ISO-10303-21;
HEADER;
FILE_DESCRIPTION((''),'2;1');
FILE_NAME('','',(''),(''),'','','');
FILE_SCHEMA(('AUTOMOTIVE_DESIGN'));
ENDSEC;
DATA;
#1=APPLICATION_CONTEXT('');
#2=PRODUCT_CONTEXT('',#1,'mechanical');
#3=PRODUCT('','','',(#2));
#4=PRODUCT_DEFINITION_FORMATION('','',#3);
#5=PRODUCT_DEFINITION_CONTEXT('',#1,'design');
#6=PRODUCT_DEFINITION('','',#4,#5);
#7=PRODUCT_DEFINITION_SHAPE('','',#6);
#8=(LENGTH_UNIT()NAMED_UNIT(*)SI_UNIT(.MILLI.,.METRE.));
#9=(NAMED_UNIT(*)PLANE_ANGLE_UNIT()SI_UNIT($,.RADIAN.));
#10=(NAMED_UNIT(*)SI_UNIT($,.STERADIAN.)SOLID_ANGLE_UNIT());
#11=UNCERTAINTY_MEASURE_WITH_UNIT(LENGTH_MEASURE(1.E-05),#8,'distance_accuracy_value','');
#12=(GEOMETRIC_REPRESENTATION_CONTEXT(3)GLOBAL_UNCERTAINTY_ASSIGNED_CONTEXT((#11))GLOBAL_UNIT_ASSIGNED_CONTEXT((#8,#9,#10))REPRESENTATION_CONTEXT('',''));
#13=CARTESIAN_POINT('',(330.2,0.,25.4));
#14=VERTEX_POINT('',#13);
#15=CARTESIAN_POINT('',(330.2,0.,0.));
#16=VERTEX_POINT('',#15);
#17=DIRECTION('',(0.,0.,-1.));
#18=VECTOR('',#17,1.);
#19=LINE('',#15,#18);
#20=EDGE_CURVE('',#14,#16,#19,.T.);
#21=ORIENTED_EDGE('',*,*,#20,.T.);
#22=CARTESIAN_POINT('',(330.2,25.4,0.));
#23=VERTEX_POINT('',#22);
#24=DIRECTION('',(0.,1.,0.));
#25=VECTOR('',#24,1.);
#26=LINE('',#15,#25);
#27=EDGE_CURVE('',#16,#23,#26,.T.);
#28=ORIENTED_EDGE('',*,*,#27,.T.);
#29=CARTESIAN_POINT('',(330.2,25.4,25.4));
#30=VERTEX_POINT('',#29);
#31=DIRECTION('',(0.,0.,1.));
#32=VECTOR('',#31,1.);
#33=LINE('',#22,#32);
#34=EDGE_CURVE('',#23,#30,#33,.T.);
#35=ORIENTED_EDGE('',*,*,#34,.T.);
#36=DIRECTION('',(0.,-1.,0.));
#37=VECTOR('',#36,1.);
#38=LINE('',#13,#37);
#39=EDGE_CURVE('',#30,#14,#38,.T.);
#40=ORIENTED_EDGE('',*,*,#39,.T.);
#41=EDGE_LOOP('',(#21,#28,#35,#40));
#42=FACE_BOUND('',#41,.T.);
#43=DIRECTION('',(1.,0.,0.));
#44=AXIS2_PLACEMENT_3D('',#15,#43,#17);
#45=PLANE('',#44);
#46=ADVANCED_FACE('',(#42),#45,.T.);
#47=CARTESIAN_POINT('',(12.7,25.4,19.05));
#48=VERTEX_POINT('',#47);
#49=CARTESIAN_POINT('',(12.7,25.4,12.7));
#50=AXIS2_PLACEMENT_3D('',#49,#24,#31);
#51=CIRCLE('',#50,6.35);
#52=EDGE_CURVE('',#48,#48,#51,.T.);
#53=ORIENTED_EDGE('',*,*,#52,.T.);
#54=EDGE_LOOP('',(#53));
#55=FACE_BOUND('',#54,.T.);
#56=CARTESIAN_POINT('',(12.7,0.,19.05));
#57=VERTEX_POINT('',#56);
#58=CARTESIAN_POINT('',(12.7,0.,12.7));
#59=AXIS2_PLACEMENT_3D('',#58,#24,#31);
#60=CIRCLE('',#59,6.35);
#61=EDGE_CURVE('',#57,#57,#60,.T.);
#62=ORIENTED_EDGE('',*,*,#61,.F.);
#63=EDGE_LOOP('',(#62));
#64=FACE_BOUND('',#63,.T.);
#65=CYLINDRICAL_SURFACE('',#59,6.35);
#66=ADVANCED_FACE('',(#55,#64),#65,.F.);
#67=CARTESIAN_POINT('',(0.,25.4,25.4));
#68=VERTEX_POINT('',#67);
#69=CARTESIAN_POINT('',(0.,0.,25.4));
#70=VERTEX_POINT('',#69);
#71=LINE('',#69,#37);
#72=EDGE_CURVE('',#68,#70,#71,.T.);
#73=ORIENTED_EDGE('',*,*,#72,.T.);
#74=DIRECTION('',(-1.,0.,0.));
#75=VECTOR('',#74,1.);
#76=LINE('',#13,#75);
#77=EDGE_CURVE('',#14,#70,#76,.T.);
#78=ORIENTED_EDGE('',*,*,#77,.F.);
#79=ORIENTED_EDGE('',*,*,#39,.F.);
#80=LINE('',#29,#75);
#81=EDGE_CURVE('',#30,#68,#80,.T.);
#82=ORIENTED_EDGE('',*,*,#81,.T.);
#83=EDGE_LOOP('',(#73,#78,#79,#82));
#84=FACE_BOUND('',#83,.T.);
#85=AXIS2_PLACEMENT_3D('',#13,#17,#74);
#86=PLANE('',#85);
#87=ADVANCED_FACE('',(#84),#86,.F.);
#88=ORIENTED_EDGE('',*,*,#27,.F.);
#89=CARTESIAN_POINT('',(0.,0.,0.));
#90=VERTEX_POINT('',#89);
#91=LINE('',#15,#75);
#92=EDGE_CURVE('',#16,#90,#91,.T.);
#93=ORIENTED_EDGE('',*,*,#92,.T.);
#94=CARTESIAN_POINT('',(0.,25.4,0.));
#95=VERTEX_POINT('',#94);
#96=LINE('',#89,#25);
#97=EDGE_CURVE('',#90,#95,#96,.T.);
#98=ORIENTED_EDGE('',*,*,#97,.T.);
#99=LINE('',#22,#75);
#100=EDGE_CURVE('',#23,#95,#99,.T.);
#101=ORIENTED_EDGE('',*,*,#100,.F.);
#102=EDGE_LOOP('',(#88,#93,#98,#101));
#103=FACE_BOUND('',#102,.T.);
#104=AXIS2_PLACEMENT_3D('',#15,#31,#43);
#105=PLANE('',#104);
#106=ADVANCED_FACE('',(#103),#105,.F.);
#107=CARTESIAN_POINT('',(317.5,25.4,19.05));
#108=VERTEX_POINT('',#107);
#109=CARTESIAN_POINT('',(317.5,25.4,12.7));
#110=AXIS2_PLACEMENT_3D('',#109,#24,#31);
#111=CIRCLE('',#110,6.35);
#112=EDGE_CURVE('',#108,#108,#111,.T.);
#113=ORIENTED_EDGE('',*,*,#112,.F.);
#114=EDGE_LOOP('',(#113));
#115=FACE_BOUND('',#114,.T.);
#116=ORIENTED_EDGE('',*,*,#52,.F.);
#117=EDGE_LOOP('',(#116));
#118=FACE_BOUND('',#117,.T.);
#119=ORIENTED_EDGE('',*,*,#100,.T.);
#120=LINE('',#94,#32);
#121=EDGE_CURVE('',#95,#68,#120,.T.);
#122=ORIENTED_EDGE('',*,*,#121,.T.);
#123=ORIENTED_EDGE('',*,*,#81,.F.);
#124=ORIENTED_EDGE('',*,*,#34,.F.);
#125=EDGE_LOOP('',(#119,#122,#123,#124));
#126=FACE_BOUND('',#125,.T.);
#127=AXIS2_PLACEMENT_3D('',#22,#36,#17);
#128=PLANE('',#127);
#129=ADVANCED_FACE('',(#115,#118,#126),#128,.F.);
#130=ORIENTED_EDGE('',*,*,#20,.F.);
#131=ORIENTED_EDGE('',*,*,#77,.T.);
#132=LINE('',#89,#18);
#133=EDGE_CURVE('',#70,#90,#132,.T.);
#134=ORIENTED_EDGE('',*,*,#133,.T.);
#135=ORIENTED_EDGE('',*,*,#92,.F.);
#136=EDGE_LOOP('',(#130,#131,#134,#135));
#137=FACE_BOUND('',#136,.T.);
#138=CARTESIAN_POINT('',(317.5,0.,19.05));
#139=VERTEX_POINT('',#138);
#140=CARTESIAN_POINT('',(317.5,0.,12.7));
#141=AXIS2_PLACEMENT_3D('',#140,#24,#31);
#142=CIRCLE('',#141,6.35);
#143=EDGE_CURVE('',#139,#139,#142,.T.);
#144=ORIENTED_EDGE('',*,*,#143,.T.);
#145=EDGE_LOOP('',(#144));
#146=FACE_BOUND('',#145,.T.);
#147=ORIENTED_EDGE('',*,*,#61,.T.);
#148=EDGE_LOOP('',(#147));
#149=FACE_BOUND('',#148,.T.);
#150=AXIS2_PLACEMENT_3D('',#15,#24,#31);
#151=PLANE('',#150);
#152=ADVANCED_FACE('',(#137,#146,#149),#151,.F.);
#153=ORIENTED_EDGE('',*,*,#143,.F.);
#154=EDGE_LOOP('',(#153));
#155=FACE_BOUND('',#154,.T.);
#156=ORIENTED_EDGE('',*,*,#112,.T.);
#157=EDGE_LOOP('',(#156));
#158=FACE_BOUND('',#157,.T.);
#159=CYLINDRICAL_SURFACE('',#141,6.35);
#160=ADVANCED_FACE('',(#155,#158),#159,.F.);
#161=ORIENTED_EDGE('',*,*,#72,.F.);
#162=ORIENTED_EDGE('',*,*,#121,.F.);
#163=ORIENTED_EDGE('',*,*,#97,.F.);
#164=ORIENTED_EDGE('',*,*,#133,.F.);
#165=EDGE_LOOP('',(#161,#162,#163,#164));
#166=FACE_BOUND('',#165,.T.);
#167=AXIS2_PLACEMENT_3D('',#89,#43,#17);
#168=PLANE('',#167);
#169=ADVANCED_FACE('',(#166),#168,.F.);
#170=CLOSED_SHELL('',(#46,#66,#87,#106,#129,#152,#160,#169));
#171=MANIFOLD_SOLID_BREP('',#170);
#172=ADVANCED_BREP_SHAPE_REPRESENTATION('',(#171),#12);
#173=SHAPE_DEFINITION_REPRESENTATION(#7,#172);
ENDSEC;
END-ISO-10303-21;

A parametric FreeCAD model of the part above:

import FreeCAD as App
import Part
import Sketcher
Q = App.Units.Quantity


def add_polygon(sketch, points):
    """Adds a closed chain of lines whose ends are joined by coincident constraints."""
    first, n = sketch.GeometryCount, len(points)
    for a, b in zip(points, points[1:] + points[:1]):
        sketch.addGeometry(Part.LineSegment(App.Vector(*a, 0), App.Vector(*b, 0)), False)
    for i in range(n):
        sketch.addConstraint(Sketcher.Constraint("Coincident", first + i, 2, first + (i + 1) % n, 1))

doc = App.newDocument("Part")
body = doc.addObject("PartDesign::Body", "Body")

# Sketch on YZ plane
sketch1 = body.newObject("Sketcher::SketchObject", "Sketch")
sketch1.AttachmentSupport = (doc.getObject("YZ_Plane"), [""])
sketch1.MapMode = "FlatFace"
add_polygon(sketch1, [(25, 25), (0, 25), (0, 0), (25, 0)])  # lines 0-3
sketch1.addConstraint([
    Sketcher.Constraint("Horizontal", 0),
    Sketcher.Constraint("Vertical", 1),
    Sketcher.Constraint("Horizontal", 2),
    Sketcher.Constraint("Vertical", 3),
    Sketcher.Constraint("Coincident", 1, 2, -1, 1),
    Sketcher.Constraint("Equal", 2, 1),
    Sketcher.Constraint("DistanceX", 0, 2, 0, 1, Q("1 in")),
])
pad1 = body.newObject("PartDesign::Pad", "Pad")
pad1.Profile = sketch1
pad1.Length = Q("13 in")

# Sketch on XZ plane
sketch2 = body.newObject("Sketcher::SketchObject", "Sketch001")
sketch2.AttachmentSupport = (doc.getObject("XZ_Plane"), [""])
sketch2.MapMode = "FlatFace"
sketch2.AttachmentOffset = App.Placement(App.Vector(0, 0, -1 * 25.4), App.Rotation())
sketch2.addGeometry([
    Part.Circle(App.Vector(318, 13, 0), App.Vector(0, 0, 1), 6),
    Part.Circle(App.Vector(13, 13, 0), App.Vector(0, 0, 1), 6),
], False)
sketch2.addConstraint([
    Sketcher.Constraint("Equal", 0, 1),
    Sketcher.Constraint("Horizontal", 0, 3, 1, 3),
    Sketcher.Constraint("Diameter", 0, Q("0.5 in")),
    Sketcher.Constraint("DistanceX", 1, 3, 0, 3, Q("12 in")),
    Sketcher.Constraint("DistanceX", -1, 1, 0, 3, Q("12.5 in")),
    Sketcher.Constraint("DistanceY", -1, 1, 0, 3, Q("0.5 in")),
])
pocket1 = body.newObject("PartDesign::Pocket", "Pocket")
pocket1.Profile = sketch2
pocket1.Type = "ThroughAll"
pocket1.Reversed = True

doc.recompute()
